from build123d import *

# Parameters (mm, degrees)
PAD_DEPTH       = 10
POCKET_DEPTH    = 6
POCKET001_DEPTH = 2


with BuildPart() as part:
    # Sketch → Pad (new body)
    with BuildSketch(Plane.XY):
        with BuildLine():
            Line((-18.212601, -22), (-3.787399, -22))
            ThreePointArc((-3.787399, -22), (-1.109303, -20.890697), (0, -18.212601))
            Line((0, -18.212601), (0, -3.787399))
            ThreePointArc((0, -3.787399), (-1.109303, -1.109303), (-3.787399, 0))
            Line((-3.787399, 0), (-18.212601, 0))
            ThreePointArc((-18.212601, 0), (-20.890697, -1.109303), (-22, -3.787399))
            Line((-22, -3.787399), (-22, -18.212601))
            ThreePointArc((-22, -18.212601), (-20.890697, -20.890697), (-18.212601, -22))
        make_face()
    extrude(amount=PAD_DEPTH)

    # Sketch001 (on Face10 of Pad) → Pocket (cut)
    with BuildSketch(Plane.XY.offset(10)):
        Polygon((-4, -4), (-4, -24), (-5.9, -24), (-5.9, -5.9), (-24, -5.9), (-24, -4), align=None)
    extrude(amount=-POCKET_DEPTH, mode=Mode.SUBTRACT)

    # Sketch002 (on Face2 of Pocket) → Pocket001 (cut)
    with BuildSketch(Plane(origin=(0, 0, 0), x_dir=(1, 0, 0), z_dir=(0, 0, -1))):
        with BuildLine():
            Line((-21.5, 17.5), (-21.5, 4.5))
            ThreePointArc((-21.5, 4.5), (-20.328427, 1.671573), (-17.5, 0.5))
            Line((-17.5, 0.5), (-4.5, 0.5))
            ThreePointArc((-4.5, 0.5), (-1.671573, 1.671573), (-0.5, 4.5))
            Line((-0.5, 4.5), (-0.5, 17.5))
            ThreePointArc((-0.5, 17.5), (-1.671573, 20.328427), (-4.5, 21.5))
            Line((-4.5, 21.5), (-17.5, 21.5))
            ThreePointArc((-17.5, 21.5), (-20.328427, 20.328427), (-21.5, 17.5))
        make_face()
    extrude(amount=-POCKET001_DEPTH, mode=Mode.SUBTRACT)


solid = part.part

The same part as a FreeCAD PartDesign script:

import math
import FreeCAD as App
import Part
import Sketcher
from FreeCAD import Vector
Q = App.Units.Quantity

doc = App.newDocument("Part")
body = doc.addObject("PartDesign::Body", "Body")

# Sketch on XY plane
sketch1 = body.newObject("Sketcher::SketchObject", "Sketch")
sketch1.AttachmentSupport = (doc.getObject("XY_Plane"), [""])
sketch1.MapMode = "FlatFace"
sketch1.addGeometry([
    Part.LineSegment(Vector(-18.2, -22, 0), Vector(-3.8, -22, 0)),  # 0
    Part.ArcOfCircle(Part.Circle(Vector(-3.8, -18.2, 0), Vector(0, 0, 1), 3.8), math.radians(-90), math.radians(0)),  # 1
    Part.LineSegment(Vector(0, -18.2, 0), Vector(0, -3.8, 0)),  # 2
    Part.ArcOfCircle(Part.Circle(Vector(-3.8, -3.8, 0), Vector(0, 0, 1), 3.8), math.radians(0), math.radians(90)),  # 3
    Part.LineSegment(Vector(-3.8, 0, 0), Vector(-18.2, 0, 0)),  # 4
    Part.ArcOfCircle(Part.Circle(Vector(-18.2, -3.8, 0), Vector(0, 0, 1), 3.8), math.radians(90), math.radians(180)),  # 5
    Part.LineSegment(Vector(-22, -3.8, 0), Vector(-22, -18.2, 0)),  # 6
    Part.ArcOfCircle(Part.Circle(Vector(-18.2, -18.2, 0), Vector(0, 0, 1), 3.8), math.radians(180), math.radians(270)),  # 7
], False)
sketch1.addConstraint([
    Sketcher.Constraint("Tangent", 0, 2, 1, 1),
    Sketcher.Constraint("Tangent", 1, 2, 2, 1),
    Sketcher.Constraint("Tangent", 2, 2, 3, 1),
    Sketcher.Constraint("Tangent", 3, 2, 4, 1),
    Sketcher.Constraint("Tangent", 4, 2, 5, 1),
    Sketcher.Constraint("Tangent", 5, 2, 6, 1),
    Sketcher.Constraint("Tangent", 6, 2, 7, 1),
    Sketcher.Constraint("Tangent", 7, 2, 0, 1),
    Sketcher.Constraint("Horizontal", 0),
    Sketcher.Constraint("Vertical", 2),
    Sketcher.Constraint("Horizontal", 4),
    Sketcher.Constraint("Vertical", 6),
    Sketcher.Constraint("Equal", 1, 3),
    Sketcher.Constraint("Equal", 3, 5),
    Sketcher.Constraint("Equal", 5, 7),
    Sketcher.Constraint("PointOnObject", 1, 2, -2),
    Sketcher.Constraint("PointOnObject", 3, 2, -1),
    Sketcher.Constraint("Equal", 4, 2),
    Sketcher.Constraint("DistanceY", 0, 2, -1, 1, Q("22 mm")),
    Sketcher.Constraint("DistanceX", 0, 1, 0, 2, Q("14.425202 mm")),
])
pad1 = body.newObject("PartDesign::Pad", "Pad")
pad1.Profile = sketch1
pad1.Length = 10

# Sketch on XY plane
sketch2 = body.newObject("Sketcher::SketchObject", "Sketch001")
sketch2.AttachmentSupport = (doc.getObject("XY_Plane"), [""])
sketch2.MapMode = "FlatFace"
sketch2.AttachmentOffset = App.Placement(Vector(0, 0, 10), App.Rotation())
sketch2.addGeometry([
    Part.LineSegment(Vector(-4, -24, 0), Vector(-4, -4, 0)),  # 0
    Part.LineSegment(Vector(-4, -4, 0), Vector(-24, -4, 0)),  # 1
    Part.LineSegment(Vector(-24, -4, 0), Vector(-24, -5.9, 0)),  # 2
    Part.LineSegment(Vector(-24, -5.9, 0), Vector(-5.9, -5.9, 0)),  # 3
    Part.LineSegment(Vector(-5.9, -5.9, 0), Vector(-5.9, -24, 0)),  # 4
    Part.LineSegment(Vector(-5.9, -24, 0), Vector(-4, -24, 0)),  # 5
], False)
sketch2.addConstraint([
    Sketcher.Constraint("Coincident", 0, 2, 1, 1),
    Sketcher.Constraint("Coincident", 1, 2, 2, 1),
    Sketcher.Constraint("Coincident", 2, 2, 3, 1),
    Sketcher.Constraint("Coincident", 3, 2, 4, 1),
    Sketcher.Constraint("Coincident", 4, 2, 5, 1),
    Sketcher.Constraint("Coincident", 5, 2, 0, 1),
    Sketcher.Constraint("Vertical", 0),
    Sketcher.Constraint("Horizontal", 1),
    Sketcher.Constraint("Vertical", 2),
    Sketcher.Constraint("Horizontal", 3),
    Sketcher.Constraint("Vertical", 4),
    Sketcher.Constraint("Horizontal", 5),
    Sketcher.Constraint("Equal", 1, 0),
    Sketcher.Constraint("Equal", 5, 2),
    Sketcher.Constraint("DistanceX", 1, 2, 1, 1, Q("20 mm")),
    Sketcher.Constraint("DistanceX", 3, 1, 3, 2, Q("18.1 mm")),
    Sketcher.Constraint("DistanceX", 0, 2, -1, 1, Q("4 mm")),
    Sketcher.Constraint("DistanceY", 0, 2, -1, 1, Q("4 mm")),
])
pocket1 = body.newObject("PartDesign::Pocket", "Pocket")
pocket1.Profile = sketch2
pocket1.Length = 6

# Sketch on XY plane
sketch3 = body.newObject("Sketcher::SketchObject", "Sketch002")
sketch3.AttachmentSupport = (doc.getObject("XY_Plane"), [""])
sketch3.MapMode = "FlatFace"
sketch3.addGeometry([
    Part.LineSegment(Vector(-21.5, -17.5, 0), Vector(-21.5, -4.5, 0)),  # 0
    Part.ArcOfCircle(Part.Circle(Vector(-17.5, -4.5, 0), Vector(0, 0, 1), 4), math.radians(90), math.radians(180)),  # 1
    Part.LineSegment(Vector(-17.5, -0.5, 0), Vector(-4.5, -0.5, 0)),  # 2
    Part.ArcOfCircle(Part.Circle(Vector(-4.5, -4.5, 0), Vector(0, 0, 1), 4), math.radians(0), math.radians(90)),  # 3
    Part.LineSegment(Vector(-0.5, -4.5, 0), Vector(-0.5, -17.5, 0)),  # 4
    Part.ArcOfCircle(Part.Circle(Vector(-4.5, -17.5, 0), Vector(0, 0, 1), 4), math.radians(-90), math.radians(0)),  # 5
    Part.LineSegment(Vector(-4.5, -21.5, 0), Vector(-17.5, -21.5, 0)),  # 6
    Part.ArcOfCircle(Part.Circle(Vector(-17.5, -17.5, 0), Vector(0, 0, 1), 4), math.radians(-180), math.radians(-90)),  # 7
], False)
sketch3.addConstraint([
    Sketcher.Constraint("Tangent", 0, 2, 1, 2),
    Sketcher.Constraint("Tangent", 1, 1, 2, 1),
    Sketcher.Constraint("Tangent", 2, 2, 3, 2),
    Sketcher.Constraint("Tangent", 3, 1, 4, 1),
    Sketcher.Constraint("Tangent", 4, 2, 5, 2),
    Sketcher.Constraint("Tangent", 5, 1, 6, 1),
    Sketcher.Constraint("Tangent", 6, 2, 7, 2),
    Sketcher.Constraint("Tangent", 7, 1, 0, 1),
    Sketcher.Constraint("Vertical", 0),
    Sketcher.Constraint("Horizontal", 2),
    Sketcher.Constraint("Vertical", 4),
    Sketcher.Constraint("Horizontal", 6),
    Sketcher.Constraint("Equal", 1, 3),
    Sketcher.Constraint("Equal", 3, 5),
    Sketcher.Constraint("Equal", 5, 7),
    Sketcher.Constraint("Equal", 6, 0),
    Sketcher.Constraint("Radius", 1, Q("4 mm")),
    Sketcher.Constraint("DistanceX", 2, 1, 2, 2, Q("13 mm")),
    Sketcher.Constraint("DistanceX", 1, 3, -1, 1, Q("17.5 mm")),
    Sketcher.Constraint("DistanceY", 1, 3, -1, 1, Q("4.5 mm")),
])
pocket2 = body.newObject("PartDesign::Pocket", "Pocket001")
pocket2.Profile = sketch3
pocket2.Length = 2
pocket2.Reversed = True

doc.recompute()
